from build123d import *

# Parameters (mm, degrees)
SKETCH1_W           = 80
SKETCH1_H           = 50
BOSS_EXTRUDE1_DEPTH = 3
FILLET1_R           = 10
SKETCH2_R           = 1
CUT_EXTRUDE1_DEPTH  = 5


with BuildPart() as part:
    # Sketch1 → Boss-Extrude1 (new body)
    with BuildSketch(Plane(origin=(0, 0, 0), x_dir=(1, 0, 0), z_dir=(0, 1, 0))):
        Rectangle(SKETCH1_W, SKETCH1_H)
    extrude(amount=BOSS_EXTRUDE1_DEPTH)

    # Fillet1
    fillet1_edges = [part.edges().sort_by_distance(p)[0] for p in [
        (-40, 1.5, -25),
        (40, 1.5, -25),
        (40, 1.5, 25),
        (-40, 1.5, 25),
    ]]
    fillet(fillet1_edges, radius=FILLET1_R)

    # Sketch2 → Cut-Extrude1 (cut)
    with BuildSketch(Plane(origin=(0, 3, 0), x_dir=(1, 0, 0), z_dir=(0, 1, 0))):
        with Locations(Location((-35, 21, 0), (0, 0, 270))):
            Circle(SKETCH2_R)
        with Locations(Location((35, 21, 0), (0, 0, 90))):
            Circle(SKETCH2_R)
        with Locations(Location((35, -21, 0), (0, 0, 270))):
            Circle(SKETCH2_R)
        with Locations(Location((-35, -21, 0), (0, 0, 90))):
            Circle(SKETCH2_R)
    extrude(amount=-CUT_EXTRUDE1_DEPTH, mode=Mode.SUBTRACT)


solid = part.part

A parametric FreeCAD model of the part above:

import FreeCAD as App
import Part
import Sketcher
from FreeCAD import Vector
Q = App.Units.Quantity


def edges_at(feature, points):
    """Names of the edges that pass closest to the given points."""
    edges = feature.Shape.Edges
    near = lambda p: min(range(len(edges)), key=lambda i: edges[i].distToShape(Part.Vertex(*p))[0])
    return sorted({f"Edge{near(p) + 1}" for p in points})


def add_polygon(sketch, points):
    """Adds a closed chain of lines whose ends are joined by coincident constraints."""
    first, n = sketch.GeometryCount, len(points)
    for a, b in zip(points, points[1:] + points[:1]):
        sketch.addGeometry(Part.LineSegment(App.Vector(*a, 0), App.Vector(*b, 0)), False)
    for i in range(n):
        sketch.addConstraint(Sketcher.Constraint("Coincident", first + i, 2, first + (i + 1) % n, 1))

doc = App.newDocument("Part")
body = doc.addObject("PartDesign::Body", "Body")

# Sketch on XZ plane
sketch1 = body.newObject("Sketcher::SketchObject", "Sketch")
sketch1.AttachmentSupport = (doc.getObject("XZ_Plane"), [""])
sketch1.MapMode = "FlatFace"
add_polygon(sketch1, [(-40, -25), (-40, 25), (40, 25), (40, -25)])  # lines 0-3
sketch1.addConstraint([
    Sketcher.Constraint("Vertical", 0),
    Sketcher.Constraint("Horizontal", 1),
    Sketcher.Constraint("Vertical", 2),
    Sketcher.Constraint("Horizontal", 3),
    Sketcher.Constraint("Symmetric", 0, 2, 2, 2, -1, 1),
    Sketcher.Constraint("DistanceX", 1, 1, 1, 2, Q("80 mm")),
    Sketcher.Constraint("DistanceY", 0, 1, 0, 2, Q("50 mm")),
])
pad1 = body.newObject("PartDesign::Pad", "Pad")
pad1.Profile = sketch1
pad1.Length = 3
pad1.Reversed = True
doc.recompute()

fillet = body.newObject("PartDesign::Fillet", "Fillet")
fillet.Base = (pad1, edges_at(pad1, [
    (-40, 1.5, -25),
    (40, 1.5, -25),
    (40, 1.5, 25),
    (-40, 1.5, 25),
]))
fillet.Radius = 10

# Sketch on XZ plane
sketch2 = body.newObject("Sketcher::SketchObject", "Sketch001")
sketch2.AttachmentSupport = (doc.getObject("XZ_Plane"), [""])
sketch2.MapMode = "FlatFace"
sketch2.AttachmentOffset = App.Placement(Vector(0, 0, -3), App.Rotation())
sketch2.addGeometry([
    Part.Circle(Vector(-35, -21, 0), Vector(0, 0, 1), 1),
    Part.Circle(Vector(35, -21, 0), Vector(0, 0, 1), 1),
    Part.Circle(Vector(35, 21, 0), Vector(0, 0, 1), 1),
    Part.Circle(Vector(-35, 21, 0), Vector(0, 0, 1), 1),
], False)
sketch2.addConstraint([
    Sketcher.Constraint("Equal", 0, 1),
    Sketcher.Constraint("Equal", 1, 2),
    Sketcher.Constraint("Equal", 2, 3),
    Sketcher.Constraint("Symmetric", 0, 3, 2, 3, -1, 1),
    Sketcher.Constraint("Symmetric", 1, 3, 3, 3, -1, 1),
    Sketcher.Constraint("Symmetric", 0, 3, 1, 3, -2),
    Sketcher.Constraint("Diameter", 0, Q("2 mm")),
    Sketcher.Constraint("DistanceX", 0, 3, -1, 1, Q("35 mm")),
    Sketcher.Constraint("DistanceY", 0, 3, -1, 1, Q("21 mm")),
])
pocket1 = body.newObject("PartDesign::Pocket", "Pocket")
pocket1.Profile = sketch2
pocket1.Length = 5
pocket1.Reversed = True

doc.recompute()
